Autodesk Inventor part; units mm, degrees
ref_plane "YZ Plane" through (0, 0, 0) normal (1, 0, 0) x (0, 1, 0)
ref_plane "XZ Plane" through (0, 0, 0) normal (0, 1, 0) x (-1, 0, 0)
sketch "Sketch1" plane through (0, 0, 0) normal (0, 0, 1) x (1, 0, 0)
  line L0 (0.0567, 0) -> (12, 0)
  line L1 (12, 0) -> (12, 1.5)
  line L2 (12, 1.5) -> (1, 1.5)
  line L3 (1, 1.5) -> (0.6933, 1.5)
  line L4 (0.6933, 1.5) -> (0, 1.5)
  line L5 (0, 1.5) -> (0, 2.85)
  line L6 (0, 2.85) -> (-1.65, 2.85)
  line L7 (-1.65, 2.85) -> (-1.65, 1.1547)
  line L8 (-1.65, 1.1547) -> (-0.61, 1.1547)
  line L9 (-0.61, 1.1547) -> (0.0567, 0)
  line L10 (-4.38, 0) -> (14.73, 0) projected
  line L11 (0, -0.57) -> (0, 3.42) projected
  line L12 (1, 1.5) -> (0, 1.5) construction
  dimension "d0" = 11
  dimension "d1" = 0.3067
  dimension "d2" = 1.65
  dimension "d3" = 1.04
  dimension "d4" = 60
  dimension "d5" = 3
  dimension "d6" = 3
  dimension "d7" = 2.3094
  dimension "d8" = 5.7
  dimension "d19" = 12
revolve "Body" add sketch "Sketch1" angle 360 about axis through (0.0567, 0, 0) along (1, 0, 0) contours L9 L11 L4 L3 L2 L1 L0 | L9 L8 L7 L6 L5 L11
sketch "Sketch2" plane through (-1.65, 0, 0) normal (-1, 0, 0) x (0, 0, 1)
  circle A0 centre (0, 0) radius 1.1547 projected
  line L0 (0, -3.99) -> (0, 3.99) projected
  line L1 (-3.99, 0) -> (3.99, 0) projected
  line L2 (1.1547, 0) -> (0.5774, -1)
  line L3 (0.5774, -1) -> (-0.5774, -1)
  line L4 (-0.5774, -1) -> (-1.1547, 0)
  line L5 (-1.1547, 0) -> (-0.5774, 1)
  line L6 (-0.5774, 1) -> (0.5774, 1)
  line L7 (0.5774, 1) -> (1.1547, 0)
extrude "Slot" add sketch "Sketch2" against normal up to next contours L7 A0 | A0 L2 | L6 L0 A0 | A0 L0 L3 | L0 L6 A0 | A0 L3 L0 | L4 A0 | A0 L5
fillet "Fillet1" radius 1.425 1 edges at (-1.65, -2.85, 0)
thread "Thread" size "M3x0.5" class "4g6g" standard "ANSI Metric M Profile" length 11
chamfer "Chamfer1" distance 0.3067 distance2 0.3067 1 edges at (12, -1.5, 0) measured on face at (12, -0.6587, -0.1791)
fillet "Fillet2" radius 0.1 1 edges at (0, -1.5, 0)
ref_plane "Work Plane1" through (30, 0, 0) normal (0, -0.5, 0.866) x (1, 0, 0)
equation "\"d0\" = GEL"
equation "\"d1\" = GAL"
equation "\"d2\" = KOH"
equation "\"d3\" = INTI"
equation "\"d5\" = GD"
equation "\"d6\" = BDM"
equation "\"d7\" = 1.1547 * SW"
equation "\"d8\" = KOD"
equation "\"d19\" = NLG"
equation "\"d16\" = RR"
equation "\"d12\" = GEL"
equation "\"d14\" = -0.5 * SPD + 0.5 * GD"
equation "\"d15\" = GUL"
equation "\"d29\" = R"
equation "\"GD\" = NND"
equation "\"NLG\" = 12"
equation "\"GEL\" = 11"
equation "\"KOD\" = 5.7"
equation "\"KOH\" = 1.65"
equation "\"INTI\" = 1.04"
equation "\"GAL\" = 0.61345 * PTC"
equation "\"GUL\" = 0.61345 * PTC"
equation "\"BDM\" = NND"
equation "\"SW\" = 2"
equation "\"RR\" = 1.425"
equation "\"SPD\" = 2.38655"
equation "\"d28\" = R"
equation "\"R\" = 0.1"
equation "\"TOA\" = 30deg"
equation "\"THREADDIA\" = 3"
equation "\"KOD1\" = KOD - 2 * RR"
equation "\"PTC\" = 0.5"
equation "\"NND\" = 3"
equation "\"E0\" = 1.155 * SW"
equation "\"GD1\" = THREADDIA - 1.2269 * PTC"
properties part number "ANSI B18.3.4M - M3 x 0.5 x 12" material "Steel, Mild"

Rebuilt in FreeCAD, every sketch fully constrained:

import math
import FreeCAD as App
import Part
import Sketcher
Q = App.Units.Quantity


def edges_at(feature, points):
    """Names of the edges that pass closest to the given points."""
    edges = feature.Shape.Edges
    near = lambda p: min(range(len(edges)), key=lambda i: edges[i].distToShape(Part.Vertex(*p))[0])
    return sorted({f"Edge{near(p) + 1}" for p in points})

doc = App.newDocument("Part")
body = doc.addObject("PartDesign::Body", "Body")

# Sketch on XY plane
sketch1 = body.newObject("Sketcher::SketchObject", "Sketch")
sketch1.AttachmentSupport = (doc.getObject("XY_Plane"), [""])
sketch1.MapMode = "FlatFace"
sketch1.addGeometry(Part.LineSegment(App.Vector(0.0567, 0, 0), App.Vector(12, 0, 0)), False)
sketch1.addGeometry(Part.LineSegment(App.Vector(12, 0, 0), App.Vector(12, 1.5, 0)), False)
sketch1.addGeometry(Part.LineSegment(App.Vector(12, 1.5, 0), App.Vector(0, 1.5, 0)), False)
sketch1.addGeometry(Part.LineSegment(App.Vector(0, 1.5, 0), App.Vector(0, 2.85, 0)), False)
sketch1.addGeometry(Part.LineSegment(App.Vector(0, 2.85, 0), App.Vector(-1.65, 2.85, 0)), False)
sketch1.addGeometry(Part.LineSegment(App.Vector(-1.65, 2.85, 0), App.Vector(-1.65, 1.1547, 0)), False)
sketch1.addGeometry(Part.LineSegment(App.Vector(-1.65, 1.1547, 0), App.Vector(-0.61, 1.1547, 0)), False)
sketch1.addGeometry(Part.LineSegment(App.Vector(-0.61, 1.1547, 0), App.Vector(0.0567, 0, 0)), False)
sketch1.addConstraint(Sketcher.Constraint("Coincident", 0, 2, 1, 1))
sketch1.addConstraint(Sketcher.Constraint("Coincident", 1, 2, 2, 1))
sketch1.addConstraint(Sketcher.Constraint("Coincident", 2, 2, 3, 1))
sketch1.addConstraint(Sketcher.Constraint("Coincident", 3, 2, 4, 1))
sketch1.addConstraint(Sketcher.Constraint("Coincident", 4, 2, 5, 1))
sketch1.addConstraint(Sketcher.Constraint("Coincident", 5, 2, 6, 1))
sketch1.addConstraint(Sketcher.Constraint("Coincident", 6, 2, 7, 1))
sketch1.addConstraint(Sketcher.Constraint("Coincident", 7, 2, 0, 1))
sketch1.addConstraint(Sketcher.Constraint("Horizontal", 0))
sketch1.addConstraint(Sketcher.Constraint("Vertical", 1))
sketch1.addConstraint(Sketcher.Constraint("Horizontal", 2))
sketch1.addConstraint(Sketcher.Constraint("Vertical", 3))
sketch1.addConstraint(Sketcher.Constraint("Horizontal", 4))
sketch1.addConstraint(Sketcher.Constraint("Vertical", 5))
sketch1.addConstraint(Sketcher.Constraint("Horizontal", 6))
sketch1.addConstraint(Sketcher.Constraint("PointOnObject", 0, 2, -1))
sketch1.addConstraint(Sketcher.Constraint("PointOnObject", 2, 2, -2))
sketch1.addConstraint(Sketcher.Constraint("DistanceX", 2, 2, 2, 1, Q("12 mm")))
sketch1.addConstraint(Sketcher.Constraint("DistanceX", 4, 2, 4, 1, Q("1.65 mm")))
sketch1.addConstraint(Sketcher.Constraint("DistanceX", 6, 1, 6, 2, Q("1.04 mm")))
sketch1.addConstraint(Sketcher.Constraint("DistanceY", 1, 1, 1, 2, Q("1.5 mm")))
sketch1.addConstraint(Sketcher.Constraint("DistanceY", 3, 1, 3, 2, Q("1.35 mm")))
sketch1.addConstraint(Sketcher.Constraint("DistanceX", 0, 1, 0, 2, Q("11.9433 mm")))
sketch1.addConstraint(Sketcher.Constraint("DistanceY", 5, 2, 5, 1, Q("1.6953 mm")))
revolution = body.newObject("PartDesign::Revolution", "Revolution")
revolution.Profile = sketch1
revolution.ReferenceAxis = (sketch1, ["H_Axis"])
revolution.Angle = 360

# Sketch on YZ plane
sketch2 = body.newObject("Sketcher::SketchObject", "Sketch001")
sketch2.AttachmentSupport = (doc.getObject("YZ_Plane"), [""])
sketch2.MapMode = "FlatFace"
sketch2.AttachmentOffset = App.Placement(App.Vector(0, 0, -1.65), App.Rotation())
sketch2.addGeometry(Part.LineSegment(App.Vector(1, 0.5774, 0), App.Vector(0, 1.1547, 0)), False)
sketch2.addGeometry(Part.ArcOfCircle(Part.Circle(App.Vector(0, 0, 0), App.Vector(0, 0, 1), 1.1547), math.radians(30.002137), math.radians(90)), False)
sketch2.addGeometry(Part.ArcOfCircle(Part.Circle(App.Vector(0, 0, 0), App.Vector(0, 0, 1), 1.1547), math.radians(90), math.radians(149.997863)), False)
sketch2.addGeometry(Part.LineSegment(App.Vector(0, 1.1547, 0), App.Vector(-1, 0.5774, 0)), False)
sketch2.addGeometry(Part.ArcOfCircle(Part.Circle(App.Vector(0, 0, 0), App.Vector(0, 0, 1), 1.1547), math.radians(-30.002137), math.radians(30.002137)), False)
sketch2.addGeometry(Part.LineSegment(App.Vector(1, 0.5774, 0), App.Vector(1, -0.5774, 0)), False)
sketch2.addGeometry(Part.LineSegment(App.Vector(-1, 0.5774, 0), App.Vector(-1, -0.5774, 0)), False)
sketch2.addGeometry(Part.ArcOfCircle(Part.Circle(App.Vector(0, 0, 0), App.Vector(0, 0, 1), 1.1547), math.radians(149.997863), math.radians(210.002137)), False)
sketch2.addGeometry(Part.LineSegment(App.Vector(-1, -0.5774, 0), App.Vector(0, -1.1547, 0)), False)
sketch2.addGeometry(Part.ArcOfCircle(Part.Circle(App.Vector(0, 0, 0), App.Vector(0, 0, 1), 1.1547), math.radians(-149.997863), math.radians(-90)), False)
sketch2.addGeometry(Part.ArcOfCircle(Part.Circle(App.Vector(0, 0, 0), App.Vector(0, 0, 1), 1.1547), math.radians(-90), math.radians(-30.002137)), False)
sketch2.addGeometry(Part.LineSegment(App.Vector(0, -1.1547, 0), App.Vector(1, -0.5774, 0)), False)
sketch2.addConstraint(Sketcher.Constraint("Coincident", 0, 1, 1, 1))
sketch2.addConstraint(Sketcher.Constraint("Coincident", 1, 2, 0, 2))
sketch2.addConstraint(Sketcher.Constraint("Coincident", 2, 1, 3, 1))
sketch2.addConstraint(Sketcher.Constraint("Coincident", 3, 2, 2, 2))
sketch2.addConstraint(Sketcher.Constraint("Coincident", 4, 1, 5, 2))
sketch2.addConstraint(Sketcher.Constraint("Coincident", 5, 1, 4, 2))
sketch2.addConstraint(Sketcher.Constraint("Coincident", 6, 1, 7, 1))
sketch2.addConstraint(Sketcher.Constraint("Coincident", 7, 2, 6, 2))
sketch2.addConstraint(Sketcher.Constraint("Coincident", 8, 1, 9, 1))
sketch2.addConstraint(Sketcher.Constraint("Coincident", 9, 2, 8, 2))
sketch2.addConstraint(Sketcher.Constraint("Coincident", 10, 1, 11, 1))
sketch2.addConstraint(Sketcher.Constraint("Coincident", 11, 2, 10, 2))
sketch2.addConstraint(Sketcher.Constraint("Vertical", 5))
sketch2.addConstraint(Sketcher.Constraint("Vertical", 6))
sketch2.addConstraint(Sketcher.Constraint("Coincident", 1, 3, -1, 1))
sketch2.addConstraint(Sketcher.Constraint("Coincident", 2, 3, -1, 1))
sketch2.addConstraint(Sketcher.Constraint("Coincident", 4, 3, -1, 1))
sketch2.addConstraint(Sketcher.Constraint("Coincident", 7, 3, -1, 1))
sketch2.addConstraint(Sketcher.Constraint("Coincident", 9, 3, -1, 1))
sketch2.addConstraint(Sketcher.Constraint("Coincident", 10, 3, -1, 1))
sketch2.addConstraint(Sketcher.Constraint("Coincident", 2, 1, 1, 2))
sketch2.addConstraint(Sketcher.Constraint("Coincident", 5, 1, 0, 1))
sketch2.addConstraint(Sketcher.Constraint("Coincident", 6, 1, 3, 2))
sketch2.addConstraint(Sketcher.Constraint("Coincident", 8, 1, 7, 2))
sketch2.addConstraint(Sketcher.Constraint("Coincident", 10, 1, 9, 2))
sketch2.addConstraint(Sketcher.Constraint("PointOnObject", 1, 2, -2))
sketch2.addConstraint(Sketcher.Constraint("PointOnObject", 9, 2, -2))
sketch2.addConstraint(Sketcher.Constraint("Parallel", 0, 8))
sketch2.addConstraint(Sketcher.Constraint("Parallel", 3, 11))
sketch2.addConstraint(Sketcher.Constraint("DistanceX", -1, 1, 0, 1, Q("1 mm")))
sketch2.addConstraint(Sketcher.Constraint("Radius", 1, Q("1.1547 mm")))
pad1 = body.newObject("PartDesign::Pad", "Pad")
pad1.Profile = sketch2
pad1.Type = "UpToFirst"
doc.recompute()

fillet = body.newObject("PartDesign::Fillet", "Fillet")
fillet.Base = (pad1, edges_at(pad1, [(-1.65, -2.85, 0)]))
fillet.Radius = 1.425
doc.recompute()

chamfer = body.newObject("PartDesign::Chamfer", "Chamfer")
chamfer.Base = (fillet, edges_at(fillet, [(12, -1.5, 0)]))
chamfer.ChamferType = "Two distances"
chamfer.Size = 0.3067
chamfer.Size2 = 0.3067
doc.recompute()

fillet2 = body.newObject("PartDesign::Fillet", "Fillet001")
fillet2.Base = (chamfer, edges_at(chamfer, [(0, -1.5, 0)]))
fillet2.Radius = 0.1

doc.recompute()
